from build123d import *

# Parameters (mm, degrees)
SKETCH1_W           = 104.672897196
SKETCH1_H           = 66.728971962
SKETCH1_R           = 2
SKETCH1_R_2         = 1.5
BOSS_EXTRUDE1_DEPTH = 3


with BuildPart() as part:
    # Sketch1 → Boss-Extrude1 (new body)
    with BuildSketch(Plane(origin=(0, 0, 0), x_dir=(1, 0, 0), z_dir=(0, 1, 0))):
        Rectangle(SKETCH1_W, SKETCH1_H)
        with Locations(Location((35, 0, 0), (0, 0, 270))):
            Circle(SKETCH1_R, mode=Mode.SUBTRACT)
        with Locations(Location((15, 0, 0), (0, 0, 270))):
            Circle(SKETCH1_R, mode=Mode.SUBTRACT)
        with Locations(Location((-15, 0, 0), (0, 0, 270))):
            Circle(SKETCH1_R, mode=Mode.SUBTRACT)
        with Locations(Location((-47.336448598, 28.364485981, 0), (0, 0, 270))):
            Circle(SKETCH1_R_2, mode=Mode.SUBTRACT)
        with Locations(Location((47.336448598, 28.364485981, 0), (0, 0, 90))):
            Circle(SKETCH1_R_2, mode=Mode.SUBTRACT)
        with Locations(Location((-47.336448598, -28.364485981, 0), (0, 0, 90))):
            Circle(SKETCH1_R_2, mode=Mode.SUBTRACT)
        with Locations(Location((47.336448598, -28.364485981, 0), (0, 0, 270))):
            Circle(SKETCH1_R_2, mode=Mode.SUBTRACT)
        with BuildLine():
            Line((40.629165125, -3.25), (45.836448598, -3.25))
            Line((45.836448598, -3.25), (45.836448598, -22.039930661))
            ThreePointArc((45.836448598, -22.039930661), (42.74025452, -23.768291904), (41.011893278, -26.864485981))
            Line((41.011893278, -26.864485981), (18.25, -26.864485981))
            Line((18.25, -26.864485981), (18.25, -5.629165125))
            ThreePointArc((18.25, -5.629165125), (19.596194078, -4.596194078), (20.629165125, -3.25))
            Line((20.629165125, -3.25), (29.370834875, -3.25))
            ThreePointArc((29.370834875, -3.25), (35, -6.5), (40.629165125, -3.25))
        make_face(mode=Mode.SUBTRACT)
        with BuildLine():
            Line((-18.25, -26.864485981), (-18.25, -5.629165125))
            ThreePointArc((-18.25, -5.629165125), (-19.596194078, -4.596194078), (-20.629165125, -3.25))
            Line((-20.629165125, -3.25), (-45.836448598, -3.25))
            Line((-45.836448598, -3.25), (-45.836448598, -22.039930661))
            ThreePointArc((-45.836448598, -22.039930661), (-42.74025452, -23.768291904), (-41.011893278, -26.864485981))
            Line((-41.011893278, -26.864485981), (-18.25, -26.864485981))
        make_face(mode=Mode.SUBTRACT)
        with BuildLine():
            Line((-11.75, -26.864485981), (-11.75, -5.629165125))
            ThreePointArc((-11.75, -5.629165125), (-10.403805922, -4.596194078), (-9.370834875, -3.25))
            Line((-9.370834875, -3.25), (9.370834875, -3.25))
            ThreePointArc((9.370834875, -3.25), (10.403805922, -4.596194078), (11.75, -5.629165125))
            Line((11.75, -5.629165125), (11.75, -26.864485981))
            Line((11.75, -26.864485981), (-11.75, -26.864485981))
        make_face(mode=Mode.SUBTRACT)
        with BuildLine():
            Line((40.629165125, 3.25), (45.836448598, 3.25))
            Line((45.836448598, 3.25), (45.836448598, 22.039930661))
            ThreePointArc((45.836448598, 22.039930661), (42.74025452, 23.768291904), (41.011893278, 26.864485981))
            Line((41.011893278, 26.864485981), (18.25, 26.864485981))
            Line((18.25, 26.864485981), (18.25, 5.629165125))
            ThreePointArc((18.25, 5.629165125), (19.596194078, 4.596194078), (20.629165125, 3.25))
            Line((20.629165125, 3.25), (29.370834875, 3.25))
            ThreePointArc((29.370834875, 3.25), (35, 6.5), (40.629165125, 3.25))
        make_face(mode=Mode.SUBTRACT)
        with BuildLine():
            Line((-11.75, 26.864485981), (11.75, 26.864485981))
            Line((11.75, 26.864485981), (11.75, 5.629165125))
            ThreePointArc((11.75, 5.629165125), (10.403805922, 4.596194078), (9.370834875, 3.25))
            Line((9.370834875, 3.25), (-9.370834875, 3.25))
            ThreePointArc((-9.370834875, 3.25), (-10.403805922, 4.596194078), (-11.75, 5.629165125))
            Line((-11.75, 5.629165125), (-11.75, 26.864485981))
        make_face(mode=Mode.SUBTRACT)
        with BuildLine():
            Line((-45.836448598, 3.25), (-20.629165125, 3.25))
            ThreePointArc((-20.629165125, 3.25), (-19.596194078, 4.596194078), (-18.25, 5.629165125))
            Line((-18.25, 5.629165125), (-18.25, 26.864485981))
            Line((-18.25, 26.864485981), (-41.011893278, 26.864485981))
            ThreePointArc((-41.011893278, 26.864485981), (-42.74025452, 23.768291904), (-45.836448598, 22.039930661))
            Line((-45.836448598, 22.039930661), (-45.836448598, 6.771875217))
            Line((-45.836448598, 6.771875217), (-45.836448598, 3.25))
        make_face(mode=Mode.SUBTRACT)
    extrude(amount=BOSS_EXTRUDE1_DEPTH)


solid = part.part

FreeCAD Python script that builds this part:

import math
import FreeCAD as App
import Part
import Sketcher
Q = App.Units.Quantity


def add_polygon(sketch, points):
    """Adds a closed chain of lines whose ends are joined by coincident constraints."""
    first, n = sketch.GeometryCount, len(points)
    for a, b in zip(points, points[1:] + points[:1]):
        sketch.addGeometry(Part.LineSegment(App.Vector(*a, 0), App.Vector(*b, 0)), False)
    for i in range(n):
        sketch.addConstraint(Sketcher.Constraint("Coincident", first + i, 2, first + (i + 1) % n, 1))

doc = App.newDocument("Part")
body = doc.addObject("PartDesign::Body", "Body")

# Sketch on XZ plane
sketch1 = doc.addObject("Sketcher::SketchObject", "Sketch")
body.addObject(sketch1)
sketch1.AttachmentSupport = (doc.XZ_Plane, [""])
sketch1.MapMode = "FlatFace"
add_polygon(sketch1, [(-52.336449, -33.364486), (-52.336449, 33.364486), (52.336449, 33.364486), (52.336449, -33.364486)])  # lines 0-3
sketch1.addGeometry(Part.Circle(App.Vector(-47.336449, 28.364486, 0), App.Vector(0, 0, 1), 1.5), False)  # 4
sketch1.addGeometry(Part.LineSegment(App.Vector(-18.25, 5.629165, 0), App.Vector(-18.25, 26.864486, 0)), False)  # 5
sketch1.addGeometry(Part.LineSegment(App.Vector(-18.25, 26.864486, 0), App.Vector(-41.011893, 26.864486, 0)), False)  # 6
sketch1.addGeometry(Part.ArcOfCircle(Part.Circle(App.Vector(-47.336449, 28.364486, 0), App.Vector(0, 0, 1), 6.5), math.radians(-76.657636), math.radians(-13.342364)), False)  # 7
sketch1.addGeometry(Part.LineSegment(App.Vector(-45.836449, 22.039931, 0), App.Vector(-45.836449, 3.25, 0)), False)  # 8
sketch1.addGeometry(Part.LineSegment(App.Vector(-45.836449, 3.25, 0), App.Vector(-20.629165, 3.25, 0)), False)  # 9
sketch1.addGeometry(Part.ArcOfCircle(Part.Circle(App.Vector(-15, 0, 0), App.Vector(0, 0, 1), 6.5), math.radians(120), math.radians(150)), False)  # 10
sketch1.addGeometry(Part.LineSegment(App.Vector(11.75, 26.864486, 0), App.Vector(-11.75, 26.864486, 0)), False)  # 11
sketch1.addGeometry(Part.LineSegment(App.Vector(-11.75, 26.864486, 0), App.Vector(-11.75, 5.629165, 0)), False)  # 12
sketch1.addGeometry(Part.ArcOfCircle(Part.Circle(App.Vector(-15, 0, 0), App.Vector(0, 0, 1), 6.5), math.radians(30), math.radians(60)), False)  # 13
sketch1.addGeometry(Part.LineSegment(App.Vector(-9.370835, 3.25, 0), App.Vector(9.370835, 3.25, 0)), False)  # 14
sketch1.addGeometry(Part.ArcOfCircle(Part.Circle(App.Vector(15, 0, 0), App.Vector(0, 0, 1), 6.5), math.radians(120), math.radians(150)), False)  # 15
sketch1.addGeometry(Part.LineSegment(App.Vector(11.75, 5.629165, 0), App.Vector(11.75, 26.864486, 0)), False)  # 16
sketch1.addGeometry(Part.Circle(App.Vector(47.336449, 28.364486, 0), App.Vector(0, 0, 1), 1.5), False)  # 17
sketch1.addGeometry(Part.ArcOfCircle(Part.Circle(App.Vector(35, 0, 0), App.Vector(0, 0, 1), 6.5), math.radians(30), math.radians(150)), False)  # 18
sketch1.addGeometry(Part.LineSegment(App.Vector(40.629165, 3.25, 0), App.Vector(45.836449, 3.25, 0)), False)  # 19
sketch1.addGeometry(Part.LineSegment(App.Vector(45.836449, 3.25, 0), App.Vector(45.836449, 22.039931, 0)), False)  # 20
sketch1.addGeometry(Part.ArcOfCircle(Part.Circle(App.Vector(47.336449, 28.364486, 0), App.Vector(0, 0, 1), 6.5), math.radians(-166.657636), math.radians(-103.342364)), False)  # 21
sketch1.addGeometry(Part.LineSegment(App.Vector(41.011893, 26.864486, 0), App.Vector(18.25, 26.864486, 0)), False)  # 22
sketch1.addGeometry(Part.LineSegment(App.Vector(18.25, 26.864486, 0), App.Vector(18.25, 5.629165, 0)), False)  # 23
sketch1.addGeometry(Part.ArcOfCircle(Part.Circle(App.Vector(15, 0, 0), App.Vector(0, 0, 1), 6.5), math.radians(30), math.radians(60)), False)  # 24
sketch1.addGeometry(Part.LineSegment(App.Vector(20.629165, 3.25, 0), App.Vector(29.370835, 3.25, 0)), False)  # 25
sketch1.addGeometry(Part.Circle(App.Vector(-15, 0, 0), App.Vector(0, 0, 1), 2), False)  # 26
sketch1.addGeometry(Part.LineSegment(App.Vector(-20.629165, -3.25, 0), App.Vector(-45.836449, -3.25, 0)), False)  # 27
sketch1.addGeometry(Part.LineSegment(App.Vector(-45.836449, -3.25, 0), App.Vector(-45.836449, -22.039931, 0)), False)  # 28
sketch1.addGeometry(Part.ArcOfCircle(Part.Circle(App.Vector(-47.336449, -28.364486, 0), App.Vector(0, 0, 1), 6.5), math.radians(13.342364), math.radians(76.657636)), False)  # 29
sketch1.addGeometry(Part.LineSegment(App.Vector(-41.011893, -26.864486, 0), App.Vector(-18.25, -26.864486, 0)), False)  # 30
sketch1.addGeometry(Part.LineSegment(App.Vector(-18.25, -26.864486, 0), App.Vector(-18.25, -5.629165, 0)), False)  # 31
sketch1.addGeometry(Part.ArcOfCircle(Part.Circle(App.Vector(-15, 0, 0), App.Vector(0, 0, 1), 6.5), math.radians(-150), math.radians(-120)), False)  # 32
sketch1.addGeometry(Part.Circle(App.Vector(-47.336449, -28.364486, 0), App.Vector(0, 0, 1), 1.5), False)  # 33
sketch1.addGeometry(Part.LineSegment(App.Vector(-11.75, -5.629165, 0), App.Vector(-11.75, -26.864486, 0)), False)  # 34
sketch1.addGeometry(Part.LineSegment(App.Vector(-11.75, -26.864486, 0), App.Vector(11.75, -26.864486, 0)), False)  # 35
sketch1.addGeometry(Part.LineSegment(App.Vector(11.75, -26.864486, 0), App.Vector(11.75, -5.629165, 0)), False)  # 36
sketch1.addGeometry(Part.ArcOfCircle(Part.Circle(App.Vector(15, 0, 0), App.Vector(0, 0, 1), 6.5), math.radians(-150), math.radians(-120)), False)  # 37
sketch1.addGeometry(Part.LineSegment(App.Vector(9.370835, -3.25, 0), App.Vector(-9.370835, -3.25, 0)), False)  # 38
sketch1.addGeometry(Part.ArcOfCircle(Part.Circle(App.Vector(-15, 0, 0), App.Vector(0, 0, 1), 6.5), math.radians(-60), math.radians(-30)), False)  # 39
sketch1.addGeometry(Part.Circle(App.Vector(15, 0, 0), App.Vector(0, 0, 1), 2), False)  # 40
sketch1.addGeometry(Part.Circle(App.Vector(35, 0, 0), App.Vector(0, 0, 1), 2), False)  # 41
sketch1.addGeometry(Part.LineSegment(App.Vector(45.836449, -3.25, 0), App.Vector(40.629165, -3.25, 0)), False)  # 42
sketch1.addGeometry(Part.ArcOfCircle(Part.Circle(App.Vector(35, 0, 0), App.Vector(0, 0, 1), 6.5), math.radians(-150), math.radians(-30)), False)  # 43
sketch1.addGeometry(Part.LineSegment(App.Vector(29.370835, -3.25, 0), App.Vector(20.629165, -3.25, 0)), False)  # 44
sketch1.addGeometry(Part.ArcOfCircle(Part.Circle(App.Vector(15, 0, 0), App.Vector(0, 0, 1), 6.5), math.radians(-60), math.radians(-30)), False)  # 45
sketch1.addGeometry(Part.LineSegment(App.Vector(18.25, -5.629165, 0), App.Vector(18.25, -26.864486, 0)), False)  # 46
sketch1.addGeometry(Part.LineSegment(App.Vector(18.25, -26.864486, 0), App.Vector(41.011893, -26.864486, 0)), False)  # 47
sketch1.addGeometry(Part.ArcOfCircle(Part.Circle(App.Vector(47.336449, -28.364486, 0), App.Vector(0, 0, 1), 6.5), math.radians(103.342364), math.radians(166.657636)), False)  # 48
sketch1.addGeometry(Part.LineSegment(App.Vector(45.836449, -22.039931, 0), App.Vector(45.836449, -3.25, 0)), False)  # 49
sketch1.addGeometry(Part.Circle(App.Vector(47.336449, -28.364486, 0), App.Vector(0, 0, 1), 1.5), False)  # 50
sketch1.addConstraint(Sketcher.Constraint("Coincident", 5, 2, 6, 1))
sketch1.addConstraint(Sketcher.Constraint("Coincident", 6, 2, 7, 2))
sketch1.addConstraint(Sketcher.Constraint("Coincident", 7, 1, 8, 1))
sketch1.addConstraint(Sketcher.Constraint("Coincident", 8, 2, 9, 1))
sketch1.addConstraint(Sketcher.Constraint("Coincident", 9, 2, 10, 2))
sketch1.addConstraint(Sketcher.Constraint("Coincident", 10, 1, 5, 1))
sketch1.addConstraint(Sketcher.Constraint("Coincident", 11, 2, 12, 1))
sketch1.addConstraint(Sketcher.Constraint("Coincident", 12, 2, 13, 2))
sketch1.addConstraint(Sketcher.Constraint("Coincident", 13, 1, 14, 1))
sketch1.addConstraint(Sketcher.Constraint("Coincident", 14, 2, 15, 2))
sketch1.addConstraint(Sketcher.Constraint("Coincident", 15, 1, 16, 1))
sketch1.addConstraint(Sketcher.Constraint("Coincident", 16, 2, 11, 1))
sketch1.addConstraint(Sketcher.Constraint("Coincident", 18, 1, 19, 1))
sketch1.addConstraint(Sketcher.Constraint("Coincident", 19, 2, 20, 1))
sketch1.addConstraint(Sketcher.Constraint("Coincident", 20, 2, 21, 2))
sketch1.addConstraint(Sketcher.Constraint("Coincident", 21, 1, 22, 1))
sketch1.addConstraint(Sketcher.Constraint("Coincident", 22, 2, 23, 1))
sketch1.addConstraint(Sketcher.Constraint("Coincident", 23, 2, 24, 2))
sketch1.addConstraint(Sketcher.Constraint("Coincident", 24, 1, 25, 1))
sketch1.addConstraint(Sketcher.Constraint("Coincident", 25, 2, 18, 2))
sketch1.addConstraint(Sketcher.Constraint("Coincident", 27, 2, 28, 1))
sketch1.addConstraint(Sketcher.Constraint("Coincident", 28, 2, 29, 2))
sketch1.addConstraint(Sketcher.Constraint("Coincident", 29, 1, 30, 1))
sketch1.addConstraint(Sketcher.Constraint("Coincident", 30, 2, 31, 1))
sketch1.addConstraint(Sketcher.Constraint("Coincident", 31, 2, 32, 2))
sketch1.addConstraint(Sketcher.Constraint("Coincident", 32, 1, 27, 1))
sketch1.addConstraint(Sketcher.Constraint("Coincident", 34, 2, 35, 1))
sketch1.addConstraint(Sketcher.Constraint("Coincident", 35, 2, 36, 1))
sketch1.addConstraint(Sketcher.Constraint("Coincident", 36, 2, 37, 2))
sketch1.addConstraint(Sketcher.Constraint("Coincident", 37, 1, 38, 1))
sketch1.addConstraint(Sketcher.Constraint("Coincident", 38, 2, 39, 2))
sketch1.addConstraint(Sketcher.Constraint("Coincident", 39, 1, 34, 1))
sketch1.addConstraint(Sketcher.Constraint("Coincident", 42, 2, 43, 2))
sketch1.addConstraint(Sketcher.Constraint("Coincident", 43, 1, 44, 1))
sketch1.addConstraint(Sketcher.Constraint("Coincident", 44, 2, 45, 2))
sketch1.addConstraint(Sketcher.Constraint("Coincident", 45, 1, 46, 1))
sketch1.addConstraint(Sketcher.Constraint("Coincident", 46, 2, 47, 1))
sketch1.addConstraint(Sketcher.Constraint("Coincident", 47, 2, 48, 2))
sketch1.addConstraint(Sketcher.Constraint("Coincident", 48, 1, 49, 1))
sketch1.addConstraint(Sketcher.Constraint("Coincident", 49, 2, 42, 1))
sketch1.addConstraint(Sketcher.Constraint("Vertical", 0))
sketch1.addConstraint(Sketcher.Constraint("Horizontal", 1))
sketch1.addConstraint(Sketcher.Constraint("Vertical", 2))
sketch1.addConstraint(Sketcher.Constraint("Horizontal", 3))
sketch1.addConstraint(Sketcher.Constraint("Vertical", 5))
sketch1.addConstraint(Sketcher.Constraint("Horizontal", 6))
sketch1.addConstraint(Sketcher.Constraint("Vertical", 8))
sketch1.addConstraint(Sketcher.Constraint("Horizontal", 9))
sketch1.addConstraint(Sketcher.Constraint("Horizontal", 11))
sketch1.addConstraint(Sketcher.Constraint("Vertical", 12))
sketch1.addConstraint(Sketcher.Constraint("Horizontal", 14))
sketch1.addConstraint(Sketcher.Constraint("Vertical", 16))
sketch1.addConstraint(Sketcher.Constraint("Horizontal", 19))
sketch1.addConstraint(Sketcher.Constraint("Vertical", 20))
sketch1.addConstraint(Sketcher.Constraint("Horizontal", 22))
sketch1.addConstraint(Sketcher.Constraint("Vertical", 23))
sketch1.addConstraint(Sketcher.Constraint("Horizontal", 25))
sketch1.addConstraint(Sketcher.Constraint("Horizontal", 27))
sketch1.addConstraint(Sketcher.Constraint("Vertical", 28))
sketch1.addConstraint(Sketcher.Constraint("Horizontal", 30))
sketch1.addConstraint(Sketcher.Constraint("Vertical", 31))
sketch1.addConstraint(Sketcher.Constraint("Vertical", 34))
sketch1.addConstraint(Sketcher.Constraint("Horizontal", 35))
sketch1.addConstraint(Sketcher.Constraint("Vertical", 36))
sketch1.addConstraint(Sketcher.Constraint("Horizontal", 38))
sketch1.addConstraint(Sketcher.Constraint("Horizontal", 42))
sketch1.addConstraint(Sketcher.Constraint("Horizontal", 44))
sketch1.addConstraint(Sketcher.Constraint("Vertical", 46))
sketch1.addConstraint(Sketcher.Constraint("Horizontal", 47))
sketch1.addConstraint(Sketcher.Constraint("Vertical", 49))
sketch1.addConstraint(Sketcher.Constraint("Coincident", 7, 3, 4, 3))
sketch1.addConstraint(Sketcher.Constraint("Coincident", 13, 3, 10, 3))
sketch1.addConstraint(Sketcher.Constraint("Coincident", 21, 3, 17, 3))
sketch1.addConstraint(Sketcher.Constraint("Coincident", 24, 3, 15, 3))
sketch1.addConstraint(Sketcher.Constraint("Coincident", 26, 3, 10, 3))
sketch1.addConstraint(Sketcher.Constraint("Coincident", 32, 3, 10, 3))
sketch1.addConstraint(Sketcher.Constraint("Coincident", 33, 3, 29, 3))
sketch1.addConstraint(Sketcher.Constraint("Coincident", 37, 3, 15, 3))
sketch1.addConstraint(Sketcher.Constraint("Coincident", 39, 3, 10, 3))
sketch1.addConstraint(Sketcher.Constraint("Coincident", 40, 3, 15, 3))
sketch1.addConstraint(Sketcher.Constraint("Coincident", 41, 3, 18, 3))
sketch1.addConstraint(Sketcher.Constraint("Coincident", 43, 3, 18, 3))
sketch1.addConstraint(Sketcher.Constraint("Coincident", 45, 3, 15, 3))
sketch1.addConstraint(Sketcher.Constraint("Coincident", 50, 3, 48, 3))
sketch1.addConstraint(Sketcher.Constraint("Equal", 7, 10))
sketch1.addConstraint(Sketcher.Constraint("Equal", 10, 13))
sketch1.addConstraint(Sketcher.Constraint("Equal", 13, 15))
sketch1.addConstraint(Sketcher.Constraint("Equal", 4, 17))
sketch1.addConstraint(Sketcher.Constraint("Equal", 15, 18))
sketch1.addConstraint(Sketcher.Constraint("Equal", 18, 21))
sketch1.addConstraint(Sketcher.Constraint("Equal", 21, 24))
sketch1.addConstraint(Sketcher.Constraint("Equal", 24, 29))
sketch1.addConstraint(Sketcher.Constraint("Equal", 29, 32))
sketch1.addConstraint(Sketcher.Constraint("Equal", 17, 33))
sketch1.addConstraint(Sketcher.Constraint("Equal", 32, 37))
sketch1.addConstraint(Sketcher.Constraint("Equal", 37, 39))
sketch1.addConstraint(Sketcher.Constraint("Equal", 26, 40))
sketch1.addConstraint(Sketcher.Constraint("Equal", 40, 41))
sketch1.addConstraint(Sketcher.Constraint("Equal", 39, 43))
sketch1.addConstraint(Sketcher.Constraint("Equal", 43, 45))
sketch1.addConstraint(Sketcher.Constraint("Equal", 45, 48))
sketch1.addConstraint(Sketcher.Constraint("Equal", 33, 50))
sketch1.addConstraint(Sketcher.Constraint("Symmetric", 10, 3, 15, 3, -1, 1))
sketch1.addConstraint(Sketcher.Constraint("Symmetric", 17, 3, 29, 3, -1, 1))
sketch1.addConstraint(Sketcher.Constraint("Symmetric", 4, 3, 48, 3, -1, 1))
sketch1.addConstraint(Sketcher.Constraint("Symmetric", 0, 2, 2, 2, -1, 1))
sketch1.addConstraint(Sketcher.Constraint("Symmetric", 19, 2, 27, 2, -1, 1))
sketch1.addConstraint(Sketcher.Constraint("Symmetric", 22, 2, 30, 2, -1, 1))
sketch1.addConstraint(Sketcher.Constraint("Symmetric", 16, 2, 34, 2, -1, 1))
sketch1.addConstraint(Sketcher.Constraint("Symmetric", 5, 2, 46, 2, -1, 1))
sketch1.addConstraint(Sketcher.Constraint("Symmetric", 8, 2, 49, 2, -1, 1))
sketch1.addConstraint(Sketcher.Constraint("Symmetric", 4, 3, 17, 3, -2))
sketch1.addConstraint(Sketcher.Constraint("Symmetric", 12, 2, 15, 1, -2))
sketch1.addConstraint(Sketcher.Constraint("Symmetric", 8, 2, 19, 2, -2))
sketch1.addConstraint(Sketcher.Constraint("Symmetric", 5, 2, 22, 2, -2))
sketch1.addConstraint(Sketcher.Constraint("Symmetric", 25, 2, 43, 1, -1))
sketch1.addConstraint(Sketcher.Constraint("Horizontal", 6, 2, 11, 2))
sketch1.addConstraint(Sketcher.Constraint("Horizontal", 10, 1, 12, 2))
sketch1.addConstraint(Sketcher.Constraint("Horizontal", 9, 2, 13, 1))
sketch1.addConstraint(Sketcher.Constraint("Horizontal", 19, 2, 24, 1))
sketch1.addConstraint(Sketcher.Constraint("Horizontal", 31, 2, 36, 2))
sketch1.addConstraint(Sketcher.Constraint("Horizontal", 32, 1, 37, 1))
sketch1.addConstraint(Sketcher.Constraint("Diameter", 4, Q("3 mm")))
sketch1.addConstraint(Sketcher.Constraint("Diameter", 26, Q("4 mm")))
sketch1.addConstraint(Sketcher.Constraint("Radius", 7, Q("6.5 mm")))
sketch1.addConstraint(Sketcher.Constraint("DistanceX", 11, 2, 11, 1, Q("23.5 mm")))
sketch1.addConstraint(Sketcher.Constraint("DistanceX", 10, 3, -1, 1, Q("15 mm")))
sketch1.addConstraint(Sketcher.Constraint("DistanceX", -1, 1, 18, 3, Q("35 mm")))
sketch1.addConstraint(Sketcher.Constraint("DistanceY", -1, 1, 8, 2, Q("3.25 mm")))
sketch1.addConstraint(Sketcher.Constraint("DistanceY", 0, 1, 0, 2, Q("66.728972 mm")))
sketch1.addConstraint(Sketcher.Constraint("DistanceY", 5, 1, 5, 2, Q("21.235321 mm")))
sketch1.addConstraint(Sketcher.Constraint("DistanceY", 8, 2, 8, 1, Q("18.789931 mm")))
sketch1.addConstraint(Sketcher.Constraint("DistanceX", 1, 1, 1, 2, Q("104.672897 mm")))
sketch1.addConstraint(Sketcher.Constraint("DistanceX", 6, 2, 6, 1, Q("22.761893 mm")))
sketch1.addConstraint(Sketcher.Constraint("DistanceX", 9, 1, 9, 2, Q("25.207283 mm")))
pad1 = doc.addObject("PartDesign::Pad", "Pad")
body.addObject(pad1)
pad1.Profile = sketch1
pad1.Length = 3
pad1.Reversed = True

doc.recompute()
